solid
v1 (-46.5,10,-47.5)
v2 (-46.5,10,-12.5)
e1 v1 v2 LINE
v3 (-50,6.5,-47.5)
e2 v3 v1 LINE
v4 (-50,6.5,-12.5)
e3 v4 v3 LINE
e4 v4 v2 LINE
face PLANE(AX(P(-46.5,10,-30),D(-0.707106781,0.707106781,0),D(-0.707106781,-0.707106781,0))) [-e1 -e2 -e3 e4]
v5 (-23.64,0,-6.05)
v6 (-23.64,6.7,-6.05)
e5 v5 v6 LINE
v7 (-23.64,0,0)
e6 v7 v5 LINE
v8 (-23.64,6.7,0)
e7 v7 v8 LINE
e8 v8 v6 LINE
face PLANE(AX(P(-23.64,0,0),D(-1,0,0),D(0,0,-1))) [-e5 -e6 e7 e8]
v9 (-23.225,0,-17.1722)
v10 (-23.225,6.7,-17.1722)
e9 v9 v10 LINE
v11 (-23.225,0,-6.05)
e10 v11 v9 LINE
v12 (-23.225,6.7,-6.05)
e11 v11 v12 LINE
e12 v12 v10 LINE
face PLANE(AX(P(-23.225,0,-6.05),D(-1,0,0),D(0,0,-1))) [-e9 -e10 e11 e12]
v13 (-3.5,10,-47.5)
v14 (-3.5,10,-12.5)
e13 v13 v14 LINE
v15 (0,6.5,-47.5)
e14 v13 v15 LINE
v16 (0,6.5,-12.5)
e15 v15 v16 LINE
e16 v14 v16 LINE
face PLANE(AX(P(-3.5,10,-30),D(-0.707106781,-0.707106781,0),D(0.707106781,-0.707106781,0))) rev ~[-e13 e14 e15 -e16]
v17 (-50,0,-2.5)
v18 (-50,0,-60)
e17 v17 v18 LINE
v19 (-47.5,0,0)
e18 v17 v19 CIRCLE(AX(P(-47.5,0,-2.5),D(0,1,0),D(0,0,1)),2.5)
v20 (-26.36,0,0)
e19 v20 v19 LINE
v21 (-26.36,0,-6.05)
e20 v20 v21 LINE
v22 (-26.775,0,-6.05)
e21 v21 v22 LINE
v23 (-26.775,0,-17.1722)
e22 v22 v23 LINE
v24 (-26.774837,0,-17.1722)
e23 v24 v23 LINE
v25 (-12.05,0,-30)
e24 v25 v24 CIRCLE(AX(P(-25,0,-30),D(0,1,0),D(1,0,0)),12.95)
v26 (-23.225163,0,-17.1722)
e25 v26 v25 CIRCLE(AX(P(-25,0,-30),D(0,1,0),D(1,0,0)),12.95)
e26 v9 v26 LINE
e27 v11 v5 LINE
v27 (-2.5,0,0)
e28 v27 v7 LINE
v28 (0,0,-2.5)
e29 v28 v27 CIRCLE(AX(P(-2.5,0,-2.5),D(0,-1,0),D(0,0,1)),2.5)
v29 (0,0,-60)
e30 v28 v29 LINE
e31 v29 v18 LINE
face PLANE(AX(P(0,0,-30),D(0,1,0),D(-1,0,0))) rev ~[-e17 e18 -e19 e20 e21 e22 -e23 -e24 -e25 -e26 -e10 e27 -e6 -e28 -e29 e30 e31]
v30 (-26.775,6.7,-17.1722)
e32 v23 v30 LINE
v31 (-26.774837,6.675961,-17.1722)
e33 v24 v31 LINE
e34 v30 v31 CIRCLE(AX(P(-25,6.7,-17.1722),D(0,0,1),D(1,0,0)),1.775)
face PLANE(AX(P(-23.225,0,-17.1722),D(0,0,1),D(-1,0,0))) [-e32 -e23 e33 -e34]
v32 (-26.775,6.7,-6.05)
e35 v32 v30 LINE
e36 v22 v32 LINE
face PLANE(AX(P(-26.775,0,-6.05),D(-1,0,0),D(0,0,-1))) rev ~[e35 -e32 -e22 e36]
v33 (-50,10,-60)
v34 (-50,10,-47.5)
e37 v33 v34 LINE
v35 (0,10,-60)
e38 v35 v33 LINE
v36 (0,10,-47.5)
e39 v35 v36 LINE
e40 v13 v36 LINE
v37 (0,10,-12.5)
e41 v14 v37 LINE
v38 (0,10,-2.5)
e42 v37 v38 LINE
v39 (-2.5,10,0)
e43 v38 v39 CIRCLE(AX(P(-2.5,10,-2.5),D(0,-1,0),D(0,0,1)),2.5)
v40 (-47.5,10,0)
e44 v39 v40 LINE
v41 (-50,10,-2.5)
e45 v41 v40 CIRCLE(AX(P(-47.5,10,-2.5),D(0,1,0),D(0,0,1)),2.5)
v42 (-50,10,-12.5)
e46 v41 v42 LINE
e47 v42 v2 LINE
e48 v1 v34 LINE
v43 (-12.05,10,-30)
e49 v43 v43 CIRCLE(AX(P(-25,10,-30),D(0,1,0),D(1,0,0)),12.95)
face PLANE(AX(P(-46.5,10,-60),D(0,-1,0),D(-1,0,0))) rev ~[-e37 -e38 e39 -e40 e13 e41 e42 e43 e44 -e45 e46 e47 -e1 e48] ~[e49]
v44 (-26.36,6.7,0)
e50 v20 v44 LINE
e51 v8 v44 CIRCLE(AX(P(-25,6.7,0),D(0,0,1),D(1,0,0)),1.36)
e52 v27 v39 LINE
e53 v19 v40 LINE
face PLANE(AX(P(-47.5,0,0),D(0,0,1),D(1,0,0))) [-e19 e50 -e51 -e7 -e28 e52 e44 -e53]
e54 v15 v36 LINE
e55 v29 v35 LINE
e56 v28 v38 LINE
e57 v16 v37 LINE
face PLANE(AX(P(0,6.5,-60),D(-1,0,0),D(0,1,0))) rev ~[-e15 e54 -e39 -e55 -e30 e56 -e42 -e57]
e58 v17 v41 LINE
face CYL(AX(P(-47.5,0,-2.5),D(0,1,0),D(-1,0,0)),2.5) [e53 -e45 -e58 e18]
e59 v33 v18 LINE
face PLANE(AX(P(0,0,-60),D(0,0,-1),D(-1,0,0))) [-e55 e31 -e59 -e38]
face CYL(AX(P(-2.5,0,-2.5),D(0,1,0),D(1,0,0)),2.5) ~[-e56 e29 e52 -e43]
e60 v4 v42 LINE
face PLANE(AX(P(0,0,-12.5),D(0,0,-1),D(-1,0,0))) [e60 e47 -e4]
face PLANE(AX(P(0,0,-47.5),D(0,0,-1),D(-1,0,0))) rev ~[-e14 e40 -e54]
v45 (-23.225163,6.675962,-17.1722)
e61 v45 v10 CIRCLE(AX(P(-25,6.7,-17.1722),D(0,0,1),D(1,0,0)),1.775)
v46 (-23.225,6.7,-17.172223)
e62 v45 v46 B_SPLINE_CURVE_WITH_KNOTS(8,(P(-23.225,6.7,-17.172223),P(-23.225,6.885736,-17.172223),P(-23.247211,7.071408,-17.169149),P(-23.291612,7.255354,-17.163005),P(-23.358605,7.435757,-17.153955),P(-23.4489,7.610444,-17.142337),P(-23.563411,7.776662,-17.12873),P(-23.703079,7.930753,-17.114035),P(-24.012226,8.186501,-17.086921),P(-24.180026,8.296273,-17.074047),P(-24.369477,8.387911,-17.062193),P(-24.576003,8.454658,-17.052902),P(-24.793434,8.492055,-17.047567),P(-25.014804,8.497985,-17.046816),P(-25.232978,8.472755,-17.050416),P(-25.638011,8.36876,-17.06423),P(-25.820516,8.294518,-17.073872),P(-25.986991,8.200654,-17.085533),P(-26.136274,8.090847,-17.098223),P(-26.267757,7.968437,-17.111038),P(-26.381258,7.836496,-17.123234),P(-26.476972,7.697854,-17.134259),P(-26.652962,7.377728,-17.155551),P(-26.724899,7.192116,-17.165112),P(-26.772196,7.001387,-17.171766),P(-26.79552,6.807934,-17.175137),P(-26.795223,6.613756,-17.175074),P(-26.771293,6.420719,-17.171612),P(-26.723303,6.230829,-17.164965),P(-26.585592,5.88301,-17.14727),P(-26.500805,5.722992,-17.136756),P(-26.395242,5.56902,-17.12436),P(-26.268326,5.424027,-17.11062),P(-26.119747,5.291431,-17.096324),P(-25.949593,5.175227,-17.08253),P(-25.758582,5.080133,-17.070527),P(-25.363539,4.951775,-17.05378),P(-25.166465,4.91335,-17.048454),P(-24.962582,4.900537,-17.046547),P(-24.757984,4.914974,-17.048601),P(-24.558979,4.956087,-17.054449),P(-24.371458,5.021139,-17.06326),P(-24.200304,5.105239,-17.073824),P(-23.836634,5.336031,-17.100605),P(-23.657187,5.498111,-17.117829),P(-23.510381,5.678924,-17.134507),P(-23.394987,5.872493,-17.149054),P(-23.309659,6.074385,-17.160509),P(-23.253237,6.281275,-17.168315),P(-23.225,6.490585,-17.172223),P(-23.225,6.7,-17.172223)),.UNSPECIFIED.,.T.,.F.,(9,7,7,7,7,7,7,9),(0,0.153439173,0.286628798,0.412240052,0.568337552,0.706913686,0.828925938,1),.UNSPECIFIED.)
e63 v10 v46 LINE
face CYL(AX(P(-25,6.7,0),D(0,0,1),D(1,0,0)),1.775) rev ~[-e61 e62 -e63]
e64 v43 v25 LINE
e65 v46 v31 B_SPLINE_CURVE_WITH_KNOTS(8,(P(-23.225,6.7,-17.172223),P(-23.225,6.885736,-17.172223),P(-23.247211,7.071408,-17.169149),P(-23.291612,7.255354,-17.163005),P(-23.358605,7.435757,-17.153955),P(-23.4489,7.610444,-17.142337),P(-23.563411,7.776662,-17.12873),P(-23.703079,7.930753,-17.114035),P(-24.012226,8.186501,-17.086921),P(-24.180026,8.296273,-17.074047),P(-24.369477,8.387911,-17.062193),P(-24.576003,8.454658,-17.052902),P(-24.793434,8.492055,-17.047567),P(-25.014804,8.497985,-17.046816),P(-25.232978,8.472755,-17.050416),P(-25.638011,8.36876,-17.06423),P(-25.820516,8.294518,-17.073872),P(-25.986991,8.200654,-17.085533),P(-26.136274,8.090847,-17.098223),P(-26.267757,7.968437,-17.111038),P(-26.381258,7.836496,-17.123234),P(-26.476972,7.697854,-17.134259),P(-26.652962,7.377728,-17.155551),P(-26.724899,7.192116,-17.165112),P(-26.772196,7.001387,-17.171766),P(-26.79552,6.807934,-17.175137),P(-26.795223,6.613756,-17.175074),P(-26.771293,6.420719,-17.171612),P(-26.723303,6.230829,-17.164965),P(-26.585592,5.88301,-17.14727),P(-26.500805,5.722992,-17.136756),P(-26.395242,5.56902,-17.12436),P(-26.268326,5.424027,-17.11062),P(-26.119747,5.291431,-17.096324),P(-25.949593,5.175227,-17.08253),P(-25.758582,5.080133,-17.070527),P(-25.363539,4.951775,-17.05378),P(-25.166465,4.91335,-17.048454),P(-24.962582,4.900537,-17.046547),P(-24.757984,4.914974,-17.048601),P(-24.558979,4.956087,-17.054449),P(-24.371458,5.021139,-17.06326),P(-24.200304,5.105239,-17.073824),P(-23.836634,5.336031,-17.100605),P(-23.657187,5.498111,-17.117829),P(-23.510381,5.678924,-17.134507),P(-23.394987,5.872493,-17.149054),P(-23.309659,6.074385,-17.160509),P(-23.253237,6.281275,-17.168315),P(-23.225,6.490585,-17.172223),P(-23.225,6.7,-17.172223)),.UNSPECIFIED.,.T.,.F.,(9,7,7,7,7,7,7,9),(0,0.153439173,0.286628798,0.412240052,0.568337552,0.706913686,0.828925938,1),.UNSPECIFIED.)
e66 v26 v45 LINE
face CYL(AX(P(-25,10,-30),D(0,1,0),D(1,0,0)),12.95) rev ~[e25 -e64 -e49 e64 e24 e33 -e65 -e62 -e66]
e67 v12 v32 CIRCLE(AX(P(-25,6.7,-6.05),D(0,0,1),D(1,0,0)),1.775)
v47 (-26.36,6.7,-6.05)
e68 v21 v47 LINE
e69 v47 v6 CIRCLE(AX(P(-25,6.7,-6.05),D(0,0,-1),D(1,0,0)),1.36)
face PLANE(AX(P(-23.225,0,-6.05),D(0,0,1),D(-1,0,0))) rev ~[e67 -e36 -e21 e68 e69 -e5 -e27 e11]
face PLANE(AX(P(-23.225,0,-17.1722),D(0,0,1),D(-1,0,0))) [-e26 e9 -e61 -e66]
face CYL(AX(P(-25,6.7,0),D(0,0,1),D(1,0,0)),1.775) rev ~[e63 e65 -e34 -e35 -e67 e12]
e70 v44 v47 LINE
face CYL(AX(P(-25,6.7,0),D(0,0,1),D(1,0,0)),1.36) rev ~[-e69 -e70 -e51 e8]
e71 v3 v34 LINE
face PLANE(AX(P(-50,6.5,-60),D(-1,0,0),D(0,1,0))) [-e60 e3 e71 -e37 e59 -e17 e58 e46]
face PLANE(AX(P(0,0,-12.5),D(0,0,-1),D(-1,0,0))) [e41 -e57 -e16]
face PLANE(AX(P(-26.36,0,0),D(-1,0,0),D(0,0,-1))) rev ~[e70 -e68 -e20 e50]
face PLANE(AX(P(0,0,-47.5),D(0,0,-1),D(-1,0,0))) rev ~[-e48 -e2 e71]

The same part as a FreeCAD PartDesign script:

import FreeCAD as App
import Part
import Sketcher

V = App.Vector


def edges_at(feature, points):
    """Names of the edges that pass closest to the given points."""
    edges = feature.Shape.Edges
    near = lambda p: min(range(len(edges)), key=lambda i: edges[i].distToShape(Part.Vertex(*p))[0])
    return sorted({f"Edge{near(p) + 1}" for p in points})


def add_polygon(sketch, points):
    """Adds a closed chain of lines whose ends are joined by coincident constraints."""
    first, n = sketch.GeometryCount, len(points)
    for a, b in zip(points, points[1:] + points[:1]):
        sketch.addGeometry(Part.LineSegment(App.Vector(*a, 0), App.Vector(*b, 0)), False)
    for i in range(n):
        sketch.addConstraint(Sketcher.Constraint("Coincident", first + i, 2, first + (i + 1) % n, 1))

doc = App.newDocument("Part")
body = doc.addObject("PartDesign::Body", "Body")

# Sketch on XZ plane
sketch1 = body.newObject("Sketcher::SketchObject", "Sketch")
sketch1.AttachmentSupport = (doc.getObject("XZ_Plane"), [""])
sketch1.MapMode = "FlatFace"
add_polygon(sketch1, [(-50, 0), (0, 0), (0, -30), (-50, -30)])  # lines 0-3
sketch1.addConstraint([
    Sketcher.Constraint("Horizontal", 0),
    Sketcher.Constraint("Vertical", 1),
    Sketcher.Constraint("Horizontal", 2),
    Sketcher.Constraint("Vertical", 3),
    Sketcher.Constraint("Coincident", 0, 2, -1, 1),
    Sketcher.Constraint("DistanceX", 0, 1, 0, 2, 50.0),
    Sketcher.Constraint("DistanceY", 1, 2, 1, 1, 30.0),
])
pad1 = body.newObject("PartDesign::Pad", "Pad")
pad1.Profile = sketch1
pad1.Length = 10
pad1.Reversed = True

# Sketch on XY plane
sketch2 = body.newObject("Sketcher::SketchObject", "Sketch001")
sketch2.AttachmentSupport = (doc.getObject("XY_Plane"), [""])
sketch2.MapMode = "FlatFace"
sketch2.AttachmentOffset = App.Placement(V(0, 0, -30), App.Rotation())
add_polygon(sketch2, [(0, 6.5), (-3.5, 10), (0, 10)])  # lines 0-2
sketch2.addConstraint([
    Sketcher.Constraint("Horizontal", 1),
    Sketcher.Constraint("Vertical", 2),
    Sketcher.Constraint("PointOnObject", 1, 2, -2),
    Sketcher.Constraint("Equal", 1, 2),
    Sketcher.Constraint("DistanceX", 1, 1, 1, 2, 3.5),
    Sketcher.Constraint("DistanceY", -1, 1, 0, 2, 10.0),
])
pocket1 = body.newObject("PartDesign::Pocket", "Pocket")
pocket1.Profile = sketch2
pocket1.Length = 17.5
pocket1.Reversed = True

# Sketch on XY plane
sketch3 = body.newObject("Sketcher::SketchObject", "Sketch002")
sketch3.AttachmentSupport = (doc.getObject("XY_Plane"), [""])
sketch3.MapMode = "FlatFace"
sketch3.AttachmentOffset = App.Placement(V(0, 0, -30), App.Rotation())
add_polygon(sketch3, [(-46.5, 10), (-50, 6.5), (-50, 10)])  # lines 0-2
sketch3.addConstraint([
    Sketcher.Constraint("Vertical", 1),
    Sketcher.Constraint("Horizontal", 2),
    Sketcher.Constraint("Equal", 2, 1),
    Sketcher.Constraint("DistanceX", 2, 1, 2, 2, 3.5),
    Sketcher.Constraint("DistanceX", 0, 2, -1, 1, 50.0),
    Sketcher.Constraint("DistanceY", -1, 1, 1, 2, 10.0),
])
pocket2 = body.newObject("PartDesign::Pocket", "Pocket001")
pocket2.Profile = sketch3
pocket2.Length = 17.5
pocket2.Reversed = True

# Sketch on XY plane
sketch4 = body.newObject("Sketcher::SketchObject", "Sketch003")
sketch4.AttachmentSupport = (doc.getObject("XY_Plane"), [""])
sketch4.MapMode = "FlatFace"
sketch4.AttachmentOffset = App.Placement(V(0, 0, -30), App.Rotation())
add_polygon(sketch4, [(0, 6.5), (0, 0), (-50, 0), (-50, 6.5), (-46.5, 10), (-3.5, 10)])  # lines 0-5
sketch4.addConstraint([
    Sketcher.Constraint("Vertical", 0),
    Sketcher.Constraint("Horizontal", 1),
    Sketcher.Constraint("Vertical", 2),
    Sketcher.Constraint("Horizontal", 4),
    Sketcher.Constraint("Coincident", 0, 2, -1, 1),
    Sketcher.Constraint("Perpendicular", 3, 5),
    Sketcher.Constraint("Horizontal", 2, 2, 5, 2),
    Sketcher.Constraint("Equal", 3, 5),
    Sketcher.Constraint("DistanceX", 1, 2, 1, 1, 50.0),
    Sketcher.Constraint("DistanceX", 4, 1, 4, 2, 43.0),
    Sketcher.Constraint("DistanceY", 0, 2, 0, 1, 6.5),
])
pad2 = body.newObject("PartDesign::Pad", "Pad001")
pad2.Profile = sketch4
pad2.Length = 30
pad2.Reversed = True

# Sketch on XY plane
sketch5 = body.newObject("Sketcher::SketchObject", "Sketch004")
sketch5.AttachmentSupport = (doc.getObject("XY_Plane"), [""])
sketch5.MapMode = "FlatFace"
sketch5.AttachmentOffset = App.Placement(V(0, 0, -60), App.Rotation())
add_polygon(sketch5, [(0, 6.5), (-3.5, 10), (0, 10)])  # lines 0-2
sketch5.addConstraint([
    Sketcher.Constraint("Horizontal", 1),
    Sketcher.Constraint("Vertical", 2),
    Sketcher.Constraint("PointOnObject", 1, 2, -2),
    Sketcher.Constraint("Equal", 1, 2),
    Sketcher.Constraint("DistanceX", 1, 1, 1, 2, 3.5),
    Sketcher.Constraint("DistanceY", -1, 1, 0, 2, 10.0),
])
pad3 = body.newObject("PartDesign::Pad", "Pad002")
pad3.Profile = sketch5
pad3.Length = 12.5

# Sketch on XY plane
sketch6 = body.newObject("Sketcher::SketchObject", "Sketch005")
sketch6.AttachmentSupport = (doc.getObject("XY_Plane"), [""])
sketch6.MapMode = "FlatFace"
sketch6.AttachmentOffset = App.Placement(V(0, 0, -60), App.Rotation())
add_polygon(sketch6, [(-46.5, 10), (-50, 6.5), (-50, 10)])  # lines 0-2
sketch6.addConstraint([
    Sketcher.Constraint("Vertical", 1),
    Sketcher.Constraint("Horizontal", 2),
    Sketcher.Constraint("Equal", 2, 1),
    Sketcher.Constraint("DistanceX", 2, 1, 2, 2, 3.5),
    Sketcher.Constraint("DistanceX", 0, 2, -1, 1, 50.0),
    Sketcher.Constraint("DistanceY", -1, 1, 1, 2, 10.0),
])
pad4 = body.newObject("PartDesign::Pad", "Pad003")
pad4.Profile = sketch6
pad4.Length = 12.5
doc.recompute()

fillet = body.newObject("PartDesign::Fillet", "Fillet")
fillet.Base = (pad4, edges_at(pad4, [(0, 5, 0), (-50, 5, 0)]))
fillet.Radius = 2.5

# Sketch on XZ plane
sketch7 = body.newObject("Sketcher::SketchObject", "Sketch006")
sketch7.AttachmentSupport = (doc.getObject("XZ_Plane"), [""])
sketch7.MapMode = "FlatFace"
sketch7.AttachmentOffset = App.Placement(V(0, 0, -10), App.Rotation())
sketch7.addGeometry(Part.Circle(V(-25, -30, 0), V(0, 0, 1), 13), False)
sketch7.addConstraint([
    Sketcher.Constraint("Diameter", 0, 25.9),
    Sketcher.Constraint("DistanceX", 0, 3, -1, 1, 25.0),
    Sketcher.Constraint("DistanceY", 0, 3, -1, 1, 30.0),
])
pocket3 = body.newObject("PartDesign::Pocket", "Pocket002")
pocket3.Profile = sketch7
pocket3.Length = 10
pocket3.Reversed = True

# Sketch on XY plane
sketch8 = body.newObject("Sketcher::SketchObject", "Sketch007")
sketch8.AttachmentSupport = (doc.getObject("XY_Plane"), [""])
sketch8.MapMode = "FlatFace"
sketch8.addGeometry(Part.Circle(V(-25, 6.7, 0), V(0, 0, 1), 1.8), False)
sketch8.addConstraint([
    Sketcher.Constraint("Diameter", 0, 3.55),
    Sketcher.Constraint("DistanceX", 0, 3, -1, 1, 25.0),
    Sketcher.Constraint("DistanceY", -1, 1, 0, 3, 6.7),
])
pocket4 = body.newObject("PartDesign::Pocket", "Pocket003")
pocket4.Profile = sketch8
pocket4.Length = 20

# Sketch on XY plane
sketch9 = body.newObject("Sketcher::SketchObject", "Sketch008")
sketch9.AttachmentSupport = (doc.getObject("XY_Plane"), [""])
sketch9.MapMode = "FlatFace"
sketch9.addGeometry(Part.Circle(V(-25, 6.7, 0), V(0, 0, 1), 1.8), False)
sketch9.addConstraint([
    Sketcher.Constraint("Diameter", 0, 3.55),
    Sketcher.Constraint("DistanceX", 0, 3, -1, 1, 25.0),
    Sketcher.Constraint("DistanceY", -1, 1, 0, 3, 6.7),
])
pad5 = body.newObject("PartDesign::Pad", "Pad004")
pad5.Profile = sketch9
pad5.Length = 6.05
pad5.Reversed = True

# Sketch on XY plane
sketch10 = body.newObject("Sketcher::SketchObject", "Sketch009")
sketch10.AttachmentSupport = (doc.getObject("XY_Plane"), [""])
sketch10.MapMode = "FlatFace"
sketch10.addGeometry(Part.Circle(V(-25, 6.7, 0), V(0, 0, 1), 1.4), False)
sketch10.addConstraint([
    Sketcher.Constraint("Diameter", 0, 2.72),
    Sketcher.Constraint("DistanceX", 0, 3, -1, 1, 25.0),
    Sketcher.Constraint("DistanceY", -1, 1, 0, 3, 6.7),
])
pocket5 = body.newObject("PartDesign::Pocket", "Pocket004")
pocket5.Profile = sketch10
pocket5.Length = 6.05

# Sketch on XZ plane
sketch11 = body.newObject("Sketcher::SketchObject", "Sketch010")
sketch11.AttachmentSupport = (doc.getObject("XZ_Plane"), [""])
sketch11.MapMode = "FlatFace"
add_polygon(sketch11, [(-23.2, -17.2), (-23.2, -6), (-26.8, -6), (-26.8, -17.2)])  # lines 0-3
sketch11.addConstraint([
    Sketcher.Constraint("Vertical", 0),
    Sketcher.Constraint("Horizontal", 1),
    Sketcher.Constraint("Vertical", 2),
    Sketcher.Constraint("Horizontal", 3),
    Sketcher.Constraint("DistanceX", 1, 2, 1, 1, 3.55),
    Sketcher.Constraint("DistanceY", 0, 2, -1, 1, 6.05),
    Sketcher.Constraint("DistanceY", 0, 1, 0, 2, 11.1222),
    Sketcher.Constraint("DistanceX", 0, 2, -1, 1, 23.225),
])
pocket6 = body.newObject("PartDesign::Pocket", "Pocket005")
pocket6.Profile = sketch11
pocket6.Length = 6.7

# Sketch on XZ plane
sketch12 = body.newObject("Sketcher::SketchObject", "Sketch011")
sketch12.AttachmentSupport = (doc.getObject("XZ_Plane"), [""])
sketch12.MapMode = "FlatFace"
add_polygon(sketch12, [(-23.6, 0), (-26.4, 0), (-26.4, -6), (-23.6, -6)])  # lines 0-3
sketch12.addConstraint([
    Sketcher.Constraint("Horizontal", 0),
    Sketcher.Constraint("Vertical", 1),
    Sketcher.Constraint("Horizontal", 2),
    Sketcher.Constraint("Vertical", 3),
    Sketcher.Constraint("PointOnObject", 0, 2, -1),
    Sketcher.Constraint("DistanceX", 0, 2, 0, 1, 2.72),
    Sketcher.Constraint("DistanceY", 1, 2, 1, 1, 6.05),
    Sketcher.Constraint("DistanceX", 0, 2, -1, 1, 26.36),
])
pocket7 = body.newObject("PartDesign::Pocket", "Pocket006")
pocket7.Profile = sketch12
pocket7.Length = 6.7

doc.recompute()
